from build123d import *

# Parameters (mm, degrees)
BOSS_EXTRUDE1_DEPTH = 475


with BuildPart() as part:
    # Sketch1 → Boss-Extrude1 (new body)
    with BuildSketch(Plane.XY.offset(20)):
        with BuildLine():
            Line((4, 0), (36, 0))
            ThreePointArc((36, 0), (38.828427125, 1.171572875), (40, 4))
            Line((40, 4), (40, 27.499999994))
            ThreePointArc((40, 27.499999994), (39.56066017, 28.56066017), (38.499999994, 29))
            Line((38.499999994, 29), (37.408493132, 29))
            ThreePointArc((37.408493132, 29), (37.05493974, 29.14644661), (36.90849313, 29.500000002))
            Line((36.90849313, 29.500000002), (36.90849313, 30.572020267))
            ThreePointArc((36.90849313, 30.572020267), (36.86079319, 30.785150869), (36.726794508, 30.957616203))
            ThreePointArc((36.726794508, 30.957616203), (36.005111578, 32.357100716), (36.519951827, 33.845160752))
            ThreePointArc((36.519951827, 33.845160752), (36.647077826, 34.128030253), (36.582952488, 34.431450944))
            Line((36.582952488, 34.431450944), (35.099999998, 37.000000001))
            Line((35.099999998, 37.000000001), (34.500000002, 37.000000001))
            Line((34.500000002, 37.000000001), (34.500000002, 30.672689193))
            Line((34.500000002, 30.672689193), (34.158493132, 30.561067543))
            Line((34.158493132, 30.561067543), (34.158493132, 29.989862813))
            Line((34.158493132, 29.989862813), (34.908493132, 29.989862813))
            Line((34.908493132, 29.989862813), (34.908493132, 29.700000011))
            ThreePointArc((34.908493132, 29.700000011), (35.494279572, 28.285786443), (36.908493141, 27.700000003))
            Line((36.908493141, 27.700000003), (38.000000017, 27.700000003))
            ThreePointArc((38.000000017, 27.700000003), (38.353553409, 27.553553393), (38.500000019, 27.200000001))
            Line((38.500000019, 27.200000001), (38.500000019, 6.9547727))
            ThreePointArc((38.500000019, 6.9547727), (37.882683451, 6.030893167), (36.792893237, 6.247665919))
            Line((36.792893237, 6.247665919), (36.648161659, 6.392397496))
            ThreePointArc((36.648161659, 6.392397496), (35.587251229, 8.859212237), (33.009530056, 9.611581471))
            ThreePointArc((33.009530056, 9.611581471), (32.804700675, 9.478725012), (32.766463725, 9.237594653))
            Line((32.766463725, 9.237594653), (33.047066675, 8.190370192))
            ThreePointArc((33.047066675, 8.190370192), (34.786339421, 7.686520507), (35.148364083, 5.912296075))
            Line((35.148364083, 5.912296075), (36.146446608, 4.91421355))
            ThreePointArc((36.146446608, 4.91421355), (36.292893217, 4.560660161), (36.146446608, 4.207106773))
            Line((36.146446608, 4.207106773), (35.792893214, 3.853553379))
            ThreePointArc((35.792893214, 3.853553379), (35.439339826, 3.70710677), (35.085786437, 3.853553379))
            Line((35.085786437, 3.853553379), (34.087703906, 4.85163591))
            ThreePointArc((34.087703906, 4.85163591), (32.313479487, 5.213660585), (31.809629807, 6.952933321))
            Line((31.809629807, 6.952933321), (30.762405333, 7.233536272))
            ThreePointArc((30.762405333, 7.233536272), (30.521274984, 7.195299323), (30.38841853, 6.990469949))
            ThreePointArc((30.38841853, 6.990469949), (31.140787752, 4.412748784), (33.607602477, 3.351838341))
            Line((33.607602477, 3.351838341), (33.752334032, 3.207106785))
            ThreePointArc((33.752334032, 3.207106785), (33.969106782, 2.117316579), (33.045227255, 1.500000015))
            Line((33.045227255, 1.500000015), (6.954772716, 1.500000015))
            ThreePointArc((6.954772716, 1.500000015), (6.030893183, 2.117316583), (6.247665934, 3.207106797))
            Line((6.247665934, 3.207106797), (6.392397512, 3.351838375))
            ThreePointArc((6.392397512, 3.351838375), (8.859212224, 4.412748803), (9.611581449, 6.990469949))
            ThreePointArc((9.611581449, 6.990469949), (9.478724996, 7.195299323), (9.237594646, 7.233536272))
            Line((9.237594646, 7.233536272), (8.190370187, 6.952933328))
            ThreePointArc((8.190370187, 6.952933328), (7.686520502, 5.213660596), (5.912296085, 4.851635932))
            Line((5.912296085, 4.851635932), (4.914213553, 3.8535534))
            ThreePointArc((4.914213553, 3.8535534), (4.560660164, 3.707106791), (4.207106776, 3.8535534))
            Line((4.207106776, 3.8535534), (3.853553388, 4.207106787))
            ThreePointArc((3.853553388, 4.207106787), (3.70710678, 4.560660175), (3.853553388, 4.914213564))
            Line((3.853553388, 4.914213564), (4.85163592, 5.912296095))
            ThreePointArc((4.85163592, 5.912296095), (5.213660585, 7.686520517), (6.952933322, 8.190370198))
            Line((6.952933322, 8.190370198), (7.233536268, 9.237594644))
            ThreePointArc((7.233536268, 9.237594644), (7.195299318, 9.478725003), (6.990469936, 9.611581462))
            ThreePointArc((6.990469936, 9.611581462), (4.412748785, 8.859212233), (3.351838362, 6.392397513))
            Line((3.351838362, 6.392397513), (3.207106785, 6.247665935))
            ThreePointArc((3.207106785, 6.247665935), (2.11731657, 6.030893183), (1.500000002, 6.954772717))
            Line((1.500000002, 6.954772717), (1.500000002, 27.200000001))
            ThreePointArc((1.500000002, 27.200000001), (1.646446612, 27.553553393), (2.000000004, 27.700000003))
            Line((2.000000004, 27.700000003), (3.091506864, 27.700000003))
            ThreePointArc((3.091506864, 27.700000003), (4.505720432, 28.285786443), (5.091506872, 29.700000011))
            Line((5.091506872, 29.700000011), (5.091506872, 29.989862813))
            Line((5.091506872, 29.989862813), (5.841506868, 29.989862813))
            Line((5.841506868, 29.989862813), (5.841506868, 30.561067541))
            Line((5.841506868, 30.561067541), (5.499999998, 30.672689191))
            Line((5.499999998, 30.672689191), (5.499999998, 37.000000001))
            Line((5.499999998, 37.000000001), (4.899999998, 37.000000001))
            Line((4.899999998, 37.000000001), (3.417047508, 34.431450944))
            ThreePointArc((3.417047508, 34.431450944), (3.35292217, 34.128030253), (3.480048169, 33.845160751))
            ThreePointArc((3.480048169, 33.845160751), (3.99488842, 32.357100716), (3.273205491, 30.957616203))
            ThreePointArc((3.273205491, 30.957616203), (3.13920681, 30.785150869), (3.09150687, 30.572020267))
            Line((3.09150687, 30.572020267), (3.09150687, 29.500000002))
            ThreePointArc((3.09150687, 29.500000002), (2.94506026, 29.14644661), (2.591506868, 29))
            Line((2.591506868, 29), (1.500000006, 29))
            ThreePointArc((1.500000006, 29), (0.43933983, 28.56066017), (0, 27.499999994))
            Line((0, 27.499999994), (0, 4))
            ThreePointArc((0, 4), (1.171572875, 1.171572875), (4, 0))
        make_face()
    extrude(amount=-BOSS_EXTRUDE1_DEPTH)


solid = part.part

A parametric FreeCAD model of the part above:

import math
import FreeCAD as App
import Part
import Sketcher
Q = App.Units.Quantity

doc = App.newDocument("Part")
body = doc.addObject("PartDesign::Body", "Body")

sketch1 = body.newObject("Sketcher::SketchObject", "Sketch")
sketch1.AttachmentSupport = (doc.getObject("XY_Plane"), [""])
sketch1.MapMode = "FlatFace"
sketch1.AttachmentOffset = App.Placement(App.Vector(0, 0, 20), App.Rotation())
sketch1.addGeometry([
    Part.LineSegment(App.Vector(4, 0, 0), App.Vector(36, 0, 0)),
    Part.ArcOfCircle(Part.Circle(App.Vector(36, 4, 0), App.Vector(0, 0, 1), 4), math.radians(-90), math.radians(0)),
    Part.LineSegment(App.Vector(40, 4, 0), App.Vector(40, 27.5, 0)),
    Part.ArcOfCircle(Part.Circle(App.Vector(38.5, 27.5, 0), App.Vector(0, 0, 1), 1.5), math.radians(0), math.radians(90)),
    Part.LineSegment(App.Vector(38.5, 29, 0), App.Vector(37.41, 29, 0)),
    Part.ArcOfCircle(Part.Circle(App.Vector(37.41, 29.5, 0), App.Vector(0, 0, 1), 0.5), math.radians(180), math.radians(270)),
    Part.LineSegment(App.Vector(36.91, 29.5, 0), App.Vector(36.91, 30.57, 0)),
    Part.ArcOfCircle(Part.Circle(App.Vector(36.41, 30.57, 0), App.Vector(0, 0, 1), 0.5), math.radians(0), math.radians(50)),
    Part.ArcOfCircle(Part.Circle(App.Vector(38, 32.5, 0), App.Vector(0, 0, 1), 2), math.radians(138), math.radians(230)),
    Part.ArcOfCircle(Part.Circle(App.Vector(36.15, 34.18, 0), App.Vector(0, 0, 1), 0.5), math.radians(-42), math.radians(30)),
    Part.LineSegment(App.Vector(36.58, 34.43, 0), App.Vector(35.1, 37, 0)),
    Part.LineSegment(App.Vector(35.1, 37, 0), App.Vector(34.5, 37, 0)),
    Part.LineSegment(App.Vector(34.5, 37, 0), App.Vector(34.5, 30.67, 0)),
    Part.LineSegment(App.Vector(34.5, 30.67, 0), App.Vector(34.16, 30.56, 0)),
    Part.LineSegment(App.Vector(34.16, 30.56, 0), App.Vector(34.16, 29.99, 0)),
    Part.LineSegment(App.Vector(34.16, 29.99, 0), App.Vector(34.91, 29.99, 0)),
    Part.LineSegment(App.Vector(34.91, 29.99, 0), App.Vector(34.91, 29.7, 0)),
    Part.ArcOfCircle(Part.Circle(App.Vector(36.91, 29.7, 0), App.Vector(0, 0, 1), 2), math.radians(180), math.radians(270)),
    Part.LineSegment(App.Vector(36.91, 27.7, 0), App.Vector(38, 27.7, 0)),
    Part.ArcOfCircle(Part.Circle(App.Vector(38, 27.2, 0), App.Vector(0, 0, 1), 0.5), math.radians(0), math.radians(90)),
    Part.LineSegment(App.Vector(38.5, 27.2, 0), App.Vector(38.5, 6.95, 0)),
    Part.ArcOfCircle(Part.Circle(App.Vector(37.5, 6.95, 0), App.Vector(0, 0, 1), 1), math.radians(-135), math.radians(0)),
    Part.LineSegment(App.Vector(36.79, 6.25, 0), App.Vector(36.65, 6.39, 0)),
    Part.ArcOfCircle(Part.Circle(App.Vector(33.5, 6.5, 0), App.Vector(0, 0, 1), 3.15), math.radians(-2), math.radians(99)),
    Part.ArcOfCircle(Part.Circle(App.Vector(33.06, 9.32, 0), App.Vector(0, 0, 1), 0.3), math.radians(99), math.radians(195)),
    Part.LineSegment(App.Vector(32.77, 9.24, 0), App.Vector(33.05, 8.19, 0)),
    Part.ArcOfCircle(Part.Circle(App.Vector(33.5, 6.5, 0), App.Vector(0, 0, 1), 1.75), math.radians(-20), math.radians(105)),
    Part.LineSegment(App.Vector(35.15, 5.91, 0), App.Vector(36.15, 4.91, 0)),
    Part.ArcOfCircle(Part.Circle(App.Vector(35.79, 4.56, 0), App.Vector(0, 0, 1), 0.5), math.radians(-45), math.radians(45)),
    Part.LineSegment(App.Vector(36.15, 4.21, 0), App.Vector(35.79, 3.85, 0)),
    Part.ArcOfCircle(Part.Circle(App.Vector(35.44, 4.21, 0), App.Vector(0, 0, 1), 0.5), math.radians(-135), math.radians(-45)),
    Part.LineSegment(App.Vector(35.09, 3.85, 0), App.Vector(34.09, 4.85, 0)),
    Part.ArcOfCircle(Part.Circle(App.Vector(33.5, 6.5, 0), App.Vector(0, 0, 1), 1.75), math.radians(165), math.radians(290)),
    Part.LineSegment(App.Vector(31.81, 6.95, 0), App.Vector(30.76, 7.23, 0)),
    Part.ArcOfCircle(Part.Circle(App.Vector(30.68, 6.94, 0), App.Vector(0, 0, 1), 0.3), math.radians(75), math.radians(171)),
    Part.ArcOfCircle(Part.Circle(App.Vector(33.5, 6.5, 0), App.Vector(0, 0, 1), 3.15), math.radians(171), math.radians(272)),
    Part.LineSegment(App.Vector(33.61, 3.35, 0), App.Vector(33.75, 3.21, 0)),
    Part.ArcOfCircle(Part.Circle(App.Vector(33.05, 2.5, 0), App.Vector(0, 0, 1), 1), math.radians(-90), math.radians(45)),
    Part.LineSegment(App.Vector(33.05, 1.5, 0), App.Vector(6.95, 1.5, 0)),
    Part.ArcOfCircle(Part.Circle(App.Vector(6.95, 2.5, 0), App.Vector(0, 0, 1), 1), math.radians(135), math.radians(270)),
    Part.LineSegment(App.Vector(6.25, 3.21, 0), App.Vector(6.39, 3.35, 0)),
    Part.ArcOfCircle(Part.Circle(App.Vector(6.5, 6.5, 0), App.Vector(0, 0, 1), 3.15), math.radians(-92), math.radians(9)),
    Part.ArcOfCircle(Part.Circle(App.Vector(9.32, 6.94, 0), App.Vector(0, 0, 1), 0.3), math.radians(9), math.radians(105)),
    Part.LineSegment(App.Vector(9.24, 7.23, 0), App.Vector(8.19, 6.95, 0)),
    Part.ArcOfCircle(Part.Circle(App.Vector(6.5, 6.5, 0), App.Vector(0, 0, 1), 1.75), math.radians(-110), math.radians(15)),
    Part.LineSegment(App.Vector(5.91, 4.85, 0), App.Vector(4.91, 3.85, 0)),
    Part.ArcOfCircle(Part.Circle(App.Vector(4.56, 4.21, 0), App.Vector(0, 0, 1), 0.5), math.radians(-135), math.radians(-45)),
    Part.LineSegment(App.Vector(4.21, 3.85, 0), App.Vector(3.85, 4.21, 0)),
    Part.ArcOfCircle(Part.Circle(App.Vector(4.21, 4.56, 0), App.Vector(0, 0, 1), 0.5), math.radians(135), math.radians(225)),
    Part.LineSegment(App.Vector(3.85, 4.91, 0), App.Vector(4.85, 5.91, 0)),
    Part.ArcOfCircle(Part.Circle(App.Vector(6.5, 6.5, 0), App.Vector(0, 0, 1), 1.75), math.radians(75), math.radians(200)),
    Part.LineSegment(App.Vector(6.95, 8.19, 0), App.Vector(7.23, 9.24, 0)),
    Part.ArcOfCircle(Part.Circle(App.Vector(6.94, 9.32, 0), App.Vector(0, 0, 1), 0.3), math.radians(-15), math.radians(81)),
    Part.ArcOfCircle(Part.Circle(App.Vector(6.5, 6.5, 0), App.Vector(0, 0, 1), 3.15), math.radians(81), math.radians(182)),
    Part.LineSegment(App.Vector(3.35, 6.39, 0), App.Vector(3.21, 6.25, 0)),
    Part.ArcOfCircle(Part.Circle(App.Vector(2.5, 6.95, 0), App.Vector(0, 0, 1), 1), math.radians(180), math.radians(315)),
    Part.LineSegment(App.Vector(1.5, 6.95, 0), App.Vector(1.5, 27.2, 0)),
    Part.ArcOfCircle(Part.Circle(App.Vector(2, 27.2, 0), App.Vector(0, 0, 1), 0.5), math.radians(90), math.radians(180)),
    Part.LineSegment(App.Vector(2, 27.7, 0), App.Vector(3.09, 27.7, 0)),
    Part.ArcOfCircle(Part.Circle(App.Vector(3.09, 29.7, 0), App.Vector(0, 0, 1), 2), math.radians(-90), math.radians(0)),
    Part.LineSegment(App.Vector(5.09, 29.7, 0), App.Vector(5.09, 29.99, 0)),
    Part.LineSegment(App.Vector(5.09, 29.99, 0), App.Vector(5.84, 29.99, 0)),
    Part.LineSegment(App.Vector(5.84, 29.99, 0), App.Vector(5.84, 30.56, 0)),
    Part.LineSegment(App.Vector(5.84, 30.56, 0), App.Vector(5.5, 30.67, 0)),
    Part.LineSegment(App.Vector(5.5, 30.67, 0), App.Vector(5.5, 37, 0)),
    Part.LineSegment(App.Vector(5.5, 37, 0), App.Vector(4.9, 37, 0)),
    Part.LineSegment(App.Vector(4.9, 37, 0), App.Vector(3.42, 34.43, 0)),
    Part.ArcOfCircle(Part.Circle(App.Vector(3.85, 34.18, 0), App.Vector(0, 0, 1), 0.5), math.radians(150), math.radians(222)),
    Part.ArcOfCircle(Part.Circle(App.Vector(2, 32.5, 0), App.Vector(0, 0, 1), 2), math.radians(-50), math.radians(42)),
    Part.ArcOfCircle(Part.Circle(App.Vector(3.59, 30.57, 0), App.Vector(0, 0, 1), 0.5), math.radians(130), math.radians(180)),
    Part.LineSegment(App.Vector(3.09, 30.57, 0), App.Vector(3.09, 29.5, 0)),
    Part.ArcOfCircle(Part.Circle(App.Vector(2.59, 29.5, 0), App.Vector(0, 0, 1), 0.5), math.radians(-90), math.radians(0)),
    Part.LineSegment(App.Vector(2.59, 29, 0), App.Vector(1.5, 29, 0)),
    Part.ArcOfCircle(Part.Circle(App.Vector(1.5, 27.5, 0), App.Vector(0, 0, 1), 1.5), math.radians(90), math.radians(180)),
    Part.LineSegment(App.Vector(0, 27.5, 0), App.Vector(0, 4, 0)),
    Part.ArcOfCircle(Part.Circle(App.Vector(4, 4, 0), App.Vector(0, 0, 1), 4), math.radians(180), math.radians(270)),
], False)
sketch1.addConstraint([
    Sketcher.Constraint("Tangent", 0, 2, 1, 1),
    Sketcher.Constraint("Tangent", 1, 2, 2, 1),
    Sketcher.Constraint("Tangent", 2, 2, 3, 1),
    Sketcher.Constraint("Tangent", 3, 2, 4, 1),
    Sketcher.Constraint("Tangent", 4, 2, 5, 2),
    Sketcher.Constraint("Tangent", 5, 1, 6, 1),
    Sketcher.Constraint("Tangent", 6, 2, 7, 1),
    Sketcher.Constraint("Tangent", 7, 2, 8, 2),
    Sketcher.Constraint("Tangent", 8, 1, 9, 1),
    Sketcher.Constraint("Tangent", 9, 2, 10, 1),
    Sketcher.Constraint("Coincident", 10, 2, 11, 1),
    Sketcher.Constraint("Coincident", 11, 2, 12, 1),
    Sketcher.Constraint("Coincident", 12, 2, 13, 1),
    Sketcher.Constraint("Coincident", 13, 2, 14, 1),
    Sketcher.Constraint("Coincident", 14, 2, 15, 1),
    Sketcher.Constraint("Coincident", 15, 2, 16, 1),
    Sketcher.Constraint("Tangent", 16, 2, 17, 1),
    Sketcher.Constraint("Tangent", 17, 2, 18, 1),
    Sketcher.Constraint("Tangent", 18, 2, 19, 2),
    Sketcher.Constraint("Tangent", 19, 1, 20, 1),
    Sketcher.Constraint("Tangent", 20, 2, 21, 2),
    Sketcher.Constraint("Tangent", 21, 1, 22, 1),
    Sketcher.Constraint("Coincident", 22, 2, 23, 1),
    Sketcher.Constraint("Tangent", 23, 2, 24, 1),
    Sketcher.Constraint("Tangent", 24, 2, 25, 1),
    Sketcher.Constraint("Coincident", 25, 2, 26, 2),
    Sketcher.Constraint("Coincident", 26, 1, 27, 1),
    Sketcher.Constraint("Tangent", 27, 2, 28, 2),
    Sketcher.Constraint("Tangent", 28, 1, 29, 1),
    Sketcher.Constraint("Tangent", 29, 2, 30, 2),
    Sketcher.Constraint("Tangent", 30, 1, 31, 1),
    Sketcher.Constraint("Coincident", 31, 2, 32, 2),
    Sketcher.Constraint("Coincident", 32, 1, 33, 1),
    Sketcher.Constraint("Tangent", 33, 2, 34, 1),
    Sketcher.Constraint("Tangent", 34, 2, 35, 1),
    Sketcher.Constraint("Coincident", 35, 2, 36, 1),
    Sketcher.Constraint("Tangent", 36, 2, 37, 2),
    Sketcher.Constraint("Tangent", 37, 1, 38, 1),
    Sketcher.Constraint("Tangent", 38, 2, 39, 2),
    Sketcher.Constraint("Tangent", 39, 1, 40, 1),
    Sketcher.Constraint("Coincident", 40, 2, 41, 1),
    Sketcher.Constraint("Tangent", 41, 2, 42, 1),
    Sketcher.Constraint("Tangent", 42, 2, 43, 1),
    Sketcher.Constraint("Coincident", 43, 2, 44, 2),
    Sketcher.Constraint("Coincident", 44, 1, 45, 1),
    Sketcher.Constraint("Tangent", 45, 2, 46, 2),
    Sketcher.Constraint("Tangent", 46, 1, 47, 1),
    Sketcher.Constraint("Tangent", 47, 2, 48, 2),
    Sketcher.Constraint("Tangent", 48, 1, 49, 1),
    Sketcher.Constraint("Coincident", 49, 2, 50, 2),
    Sketcher.Constraint("Coincident", 50, 1, 51, 1),
    Sketcher.Constraint("Tangent", 51, 2, 52, 1),
    Sketcher.Constraint("Tangent", 52, 2, 53, 1),
    Sketcher.Constraint("Coincident", 53, 2, 54, 1),
    Sketcher.Constraint("Tangent", 54, 2, 55, 2),
    Sketcher.Constraint("Tangent", 55, 1, 56, 1),
    Sketcher.Constraint("Tangent", 56, 2, 57, 2),
    Sketcher.Constraint("Tangent", 57, 1, 58, 1),
    Sketcher.Constraint("Tangent", 58, 2, 59, 1),
    Sketcher.Constraint("Tangent", 59, 2, 60, 1),
    Sketcher.Constraint("Coincident", 60, 2, 61, 1),
    Sketcher.Constraint("Coincident", 61, 2, 62, 1),
    Sketcher.Constraint("Coincident", 62, 2, 63, 1),
    Sketcher.Constraint("Coincident", 63, 2, 64, 1),
    Sketcher.Constraint("Coincident", 64, 2, 65, 1),
    Sketcher.Constraint("Coincident", 65, 2, 66, 1),
    Sketcher.Constraint("Tangent", 66, 2, 67, 1),
    Sketcher.Constraint("Tangent", 67, 2, 68, 2),
    Sketcher.Constraint("Tangent", 68, 1, 69, 1),
    Sketcher.Constraint("Tangent", 69, 2, 70, 1),
    Sketcher.Constraint("Tangent", 70, 2, 71, 2),
    Sketcher.Constraint("Tangent", 71, 1, 72, 1),
    Sketcher.Constraint("Tangent", 72, 2, 73, 1),
    Sketcher.Constraint("Tangent", 73, 2, 74, 1),
    Sketcher.Constraint("Tangent", 74, 2, 75, 1),
    Sketcher.Constraint("Tangent", 75, 2, 0, 1),
    Sketcher.Constraint("Horizontal", 0),
    Sketcher.Constraint("Vertical", 2),
    Sketcher.Constraint("Horizontal", 4),
    Sketcher.Constraint("Vertical", 6),
    Sketcher.Constraint("Horizontal", 11),
    Sketcher.Constraint("Vertical", 12),
    Sketcher.Constraint("Vertical", 14),
    Sketcher.Constraint("Horizontal", 15),
    Sketcher.Constraint("Vertical", 16),
    Sketcher.Constraint("Horizontal", 18),
    Sketcher.Constraint("Vertical", 20),
    Sketcher.Constraint("Horizontal", 38),
    Sketcher.Constraint("Vertical", 56),
    Sketcher.Constraint("Horizontal", 58),
    Sketcher.Constraint("Vertical", 60),
    Sketcher.Constraint("Horizontal", 61),
    Sketcher.Constraint("Vertical", 62),
    Sketcher.Constraint("Vertical", 64),
    Sketcher.Constraint("Horizontal", 65),
    Sketcher.Constraint("Vertical", 70),
    Sketcher.Constraint("Horizontal", 72),
    Sketcher.Constraint("Vertical", 74),
    Sketcher.Constraint("Coincident", 26, 3, 23, 3),
    Sketcher.Constraint("Coincident", 32, 3, 23, 3),
    Sketcher.Constraint("Coincident", 35, 3, 23, 3),
    Sketcher.Constraint("Coincident", 44, 3, 41, 3),
    Sketcher.Constraint("Coincident", 50, 3, 41, 3),
    Sketcher.Constraint("Coincident", 53, 3, 41, 3),
    Sketcher.Constraint("Equal", 5, 7),
    Sketcher.Constraint("Equal", 7, 9),
    Sketcher.Constraint("Equal", 8, 17),
    Sketcher.Constraint("Equal", 9, 19),
    Sketcher.Constraint("Equal", 19, 28),
    Sketcher.Constraint("Equal", 28, 30),
    Sketcher.Constraint("Equal", 26, 32),
    Sketcher.Constraint("Equal", 24, 34),
    Sketcher.Constraint("Equal", 23, 35),
    Sketcher.Constraint("Equal", 21, 37),
    Sketcher.Constraint("Equal", 37, 39),
    Sketcher.Constraint("Equal", 35, 41),
    Sketcher.Constraint("Equal", 34, 42),
    Sketcher.Constraint("Equal", 32, 44),
    Sketcher.Constraint("Equal", 30, 46),
    Sketcher.Constraint("Equal", 46, 48),
    Sketcher.Constraint("Equal", 44, 50),
    Sketcher.Constraint("Equal", 42, 52),
    Sketcher.Constraint("Equal", 41, 53),
    Sketcher.Constraint("Equal", 39, 55),
    Sketcher.Constraint("Equal", 48, 57),
    Sketcher.Constraint("Equal", 17, 59),
    Sketcher.Constraint("Equal", 57, 67),
    Sketcher.Constraint("Equal", 59, 68),
    Sketcher.Constraint("Equal", 67, 69),
    Sketcher.Constraint("Equal", 69, 71),
    Sketcher.Constraint("Equal", 3, 73),
    Sketcher.Constraint("Equal", 1, 75),
    Sketcher.Constraint("PointOnObject", 0, 2, -1),
    Sketcher.Constraint("PointOnObject", 73, 2, -2),
    Sketcher.Constraint("Parallel", 22, 27),
    Sketcher.Constraint("Perpendicular", 27, 29),
    Sketcher.Constraint("Perpendicular", 29, 31),
    Sketcher.Constraint("Parallel", 31, 36),
    Sketcher.Constraint("Perpendicular", 36, 40),
    Sketcher.Constraint("Perpendicular", 25, 43),
    Sketcher.Constraint("Parallel", 40, 45),
    Sketcher.Constraint("Perpendicular", 45, 47),
    Sketcher.Constraint("Perpendicular", 47, 49),
    Sketcher.Constraint("Perpendicular", 33, 51),
    Sketcher.Constraint("Parallel", 49, 54),
    Sketcher.Constraint("Horizontal", 35, 3, 41, 3),
    Sketcher.Constraint("Horizontal", 34, 3, 42, 3),
    Sketcher.Constraint("Horizontal", 30, 3, 46, 3),
    Sketcher.Constraint("Horizontal", 28, 3, 48, 3),
    Sketcher.Constraint("Horizontal", 24, 3, 52, 3),
    Sketcher.Constraint("Horizontal", 21, 3, 55, 3),
    Sketcher.Constraint("Horizontal", 19, 3, 57, 3),
    Sketcher.Constraint("Horizontal", 9, 3, 67, 3),
    Sketcher.Constraint("Horizontal", 8, 3, 68, 3),
    Sketcher.Constraint("Horizontal", 7, 3, 69, 3),
    Sketcher.Constraint("Horizontal", 5, 3, 71, 3),
    Sketcher.Constraint("Horizontal", 46, 3, 28, 1),
    Sketcher.Constraint("Horizontal", 29, 2, 30, 1),
    Sketcher.Constraint("Horizontal", 35, 2, 40, 2),
    Sketcher.Constraint("Horizontal", 33, 2, 42, 2),
    Sketcher.Constraint("Horizontal", 31, 2, 44, 1),
    Sketcher.Constraint("Horizontal", 22, 2, 53, 2),
    Sketcher.Constraint("Horizontal", 15, 2, 60, 2),
    Sketcher.Constraint("Horizontal", 13, 2, 62, 2),
    Sketcher.Constraint("Horizontal", 12, 2, 63, 2),
    Sketcher.Constraint("Horizontal", 11, 2, 64, 2),
    Sketcher.Constraint("Horizontal", 9, 2, 66, 2),
    Sketcher.Constraint("Vertical", 8, 3, 19, 3),
    Sketcher.Constraint("Vertical", 57, 3, 68, 3),
    Sketcher.Constraint("Vertical", 17, 3, 5, 1),
    Sketcher.Constraint("Vertical", 3, 2, 19, 1),
    Sketcher.Constraint("Vertical", 73, 3, 55, 1),
    Sketcher.Constraint("Vertical", 58, 2, 69, 2),
    Sketcher.Constraint("Equal", 15, 61),
    Sketcher.Constraint("Equal", 11, 65),
    Sketcher.Constraint("Equal", 27, 31),
    Sketcher.Constraint("Equal", 25, 33),
    Sketcher.Constraint("Equal", 22, 36),
    Sketcher.Constraint("Radius", 1, Q("4 mm")),
    Sketcher.Constraint("Radius", 8, Q("2 mm")),
    Sketcher.Constraint("Radius", 21, Q("1 mm")),
    Sketcher.Constraint("Radius", 3, Q("1.5 mm")),
    Sketcher.Constraint("Radius", 5, Q("0.5 mm")),
    Sketcher.Constraint("Radius", 24, Q("0.3 mm")),
    Sketcher.Constraint("DistanceX", 0, 1, 0, 2, Q("32 mm")),
    Sketcher.Constraint("Angle", 10, Q("120 deg")),
    Sketcher.Constraint("Angle", 25, Q("-75 deg")),
    Sketcher.Constraint("Radius", 23, Q("3.15 mm")),
    Sketcher.Constraint("Radius", 26, Q("1.75 mm")),
    Sketcher.Constraint("DistanceX", 11, 2, 11, 1, Q("0.6 mm")),
    Sketcher.Constraint("DistanceY", 2, 1, 2, 2, Q("23.5 mm")),
    Sketcher.Constraint("DistanceY", -1, 1, 10, 2, Q("37 mm")),
    Sketcher.Constraint("Angle", 13, Q("-161.9 deg")),
    Sketcher.Constraint("DistanceX", 15, 1, 15, 2, Q("0.75 mm")),
    Sketcher.Constraint("DistanceY", -1, 1, 8, 3, Q("32.5 mm")),
    Sketcher.Constraint("DistanceY", -1, 1, 17, 3, Q("29.7 mm")),
    Sketcher.Constraint("DistanceX", -1, 1, 23, 3, Q("33.5 mm")),
    Sketcher.Constraint("DistanceY", -1, 1, 23, 3, Q("6.5 mm")),
    Sketcher.Constraint("DistanceY", -1, 1, 37, 3, Q("2.5 mm")),
    Sketcher.Constraint("DistanceX", -1, 1, 10, 2, Q("35.1 mm")),
    Sketcher.Constraint("Distance", 27, Q("1.411502 mm")),
    Sketcher.Constraint("DistanceY", 6, 1, 6, 2, Q("1.07202 mm")),
    Sketcher.Constraint("DistanceY", 12, 2, 12, 1, Q("6.327311 mm")),
    Sketcher.Constraint("Distance", 22, Q("0.204681 mm")),
    Sketcher.Constraint("DistanceY", 14, 2, 14, 1, Q("0.571205 mm")),
    Sketcher.Constraint("DistanceX", -1, 1, 24, 3, Q("33.056241 mm")),
])
pad1 = body.newObject("PartDesign::Pad", "Pad")
pad1.Profile = sketch1
pad1.Length = 475
pad1.Reversed = True

doc.recompute()
